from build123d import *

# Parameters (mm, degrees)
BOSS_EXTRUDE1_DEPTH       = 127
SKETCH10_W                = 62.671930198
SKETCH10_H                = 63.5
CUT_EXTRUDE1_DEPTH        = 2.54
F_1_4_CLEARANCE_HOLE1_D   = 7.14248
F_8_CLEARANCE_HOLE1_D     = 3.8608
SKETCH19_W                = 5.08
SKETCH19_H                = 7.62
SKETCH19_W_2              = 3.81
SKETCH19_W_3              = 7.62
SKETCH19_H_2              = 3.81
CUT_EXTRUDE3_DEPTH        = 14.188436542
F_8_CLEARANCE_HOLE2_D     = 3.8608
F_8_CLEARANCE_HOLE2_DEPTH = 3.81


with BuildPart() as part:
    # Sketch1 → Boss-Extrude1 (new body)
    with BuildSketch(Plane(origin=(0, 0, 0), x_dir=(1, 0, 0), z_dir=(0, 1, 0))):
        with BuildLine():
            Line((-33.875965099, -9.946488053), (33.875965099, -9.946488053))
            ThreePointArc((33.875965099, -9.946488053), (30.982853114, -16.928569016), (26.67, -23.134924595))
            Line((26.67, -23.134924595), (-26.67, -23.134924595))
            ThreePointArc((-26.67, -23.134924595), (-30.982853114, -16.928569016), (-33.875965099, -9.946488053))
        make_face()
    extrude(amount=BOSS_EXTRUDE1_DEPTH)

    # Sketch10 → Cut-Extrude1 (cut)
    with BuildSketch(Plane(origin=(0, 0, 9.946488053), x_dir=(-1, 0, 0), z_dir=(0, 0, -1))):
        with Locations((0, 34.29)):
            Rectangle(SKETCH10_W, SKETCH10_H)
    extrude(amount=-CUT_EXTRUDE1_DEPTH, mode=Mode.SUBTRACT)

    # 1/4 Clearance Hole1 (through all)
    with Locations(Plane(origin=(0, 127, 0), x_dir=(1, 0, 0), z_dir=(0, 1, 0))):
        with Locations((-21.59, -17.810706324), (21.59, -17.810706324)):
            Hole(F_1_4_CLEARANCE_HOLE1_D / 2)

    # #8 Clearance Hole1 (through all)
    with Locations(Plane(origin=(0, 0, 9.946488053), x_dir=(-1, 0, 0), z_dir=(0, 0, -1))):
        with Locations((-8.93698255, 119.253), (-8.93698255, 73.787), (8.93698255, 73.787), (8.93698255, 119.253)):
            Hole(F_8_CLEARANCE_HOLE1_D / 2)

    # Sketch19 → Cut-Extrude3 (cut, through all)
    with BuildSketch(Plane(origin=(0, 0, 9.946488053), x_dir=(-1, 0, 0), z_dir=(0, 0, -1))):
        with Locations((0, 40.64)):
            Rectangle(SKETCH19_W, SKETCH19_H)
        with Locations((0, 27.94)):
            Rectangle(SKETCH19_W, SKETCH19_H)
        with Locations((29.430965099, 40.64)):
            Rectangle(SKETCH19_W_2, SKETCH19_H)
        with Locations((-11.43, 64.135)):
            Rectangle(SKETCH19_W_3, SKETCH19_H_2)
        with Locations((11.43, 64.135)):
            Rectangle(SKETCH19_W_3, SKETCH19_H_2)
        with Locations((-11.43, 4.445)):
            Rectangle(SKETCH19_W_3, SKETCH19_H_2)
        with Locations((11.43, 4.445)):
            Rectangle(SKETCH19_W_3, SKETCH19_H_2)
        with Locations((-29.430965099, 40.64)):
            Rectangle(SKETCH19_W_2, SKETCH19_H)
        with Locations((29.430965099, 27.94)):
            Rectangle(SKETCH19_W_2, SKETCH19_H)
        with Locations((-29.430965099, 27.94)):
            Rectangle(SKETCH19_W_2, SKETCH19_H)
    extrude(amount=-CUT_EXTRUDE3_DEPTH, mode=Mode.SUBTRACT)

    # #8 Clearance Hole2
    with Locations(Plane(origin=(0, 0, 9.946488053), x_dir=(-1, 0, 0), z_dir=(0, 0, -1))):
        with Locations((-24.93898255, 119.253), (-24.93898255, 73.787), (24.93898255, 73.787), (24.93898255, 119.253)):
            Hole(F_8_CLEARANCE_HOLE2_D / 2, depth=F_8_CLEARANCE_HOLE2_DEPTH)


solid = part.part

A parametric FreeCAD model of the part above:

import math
import FreeCAD as App
import Part
import Sketcher

V = App.Vector
Q = App.Units.Quantity


def add_polygon(sketch, points):
    """Adds a closed chain of lines whose ends are joined by coincident constraints."""
    first, n = sketch.GeometryCount, len(points)
    for a, b in zip(points, points[1:] + points[:1]):
        sketch.addGeometry(Part.LineSegment(App.Vector(*a, 0), App.Vector(*b, 0)), False)
    for i in range(n):
        sketch.addConstraint(Sketcher.Constraint("Coincident", first + i, 2, first + (i + 1) % n, 1))

doc = App.newDocument("Part")
body = doc.addObject("PartDesign::Body", "Body")

# Sketch on XZ plane
sketch1 = doc.addObject("Sketcher::SketchObject", "Sketch")
body.addObject(sketch1)
sketch1.AttachmentSupport = (doc.XZ_Plane, [""])
sketch1.MapMode = "FlatFace"
sketch1.addGeometry([
    Part.LineSegment(V(33.875965, 9.946488, 0), V(-33.875965, 9.946488, 0)),
    Part.ArcOfCircle(Part.Circle(V(0, 0, 0), V(0, 0, 1), 35.306), math.radians(139.059956), math.radians(163.636975)),
    Part.LineSegment(V(-26.67, 23.134925, 0), V(26.67, 23.134925, 0)),
    Part.ArcOfCircle(Part.Circle(V(0, 0, 0), V(0, 0, 1), 35.306), math.radians(16.363025), math.radians(40.940044)),
], False)
sketch1.addConstraint([
    Sketcher.Constraint("Coincident", 0, 2, 1, 2),
    Sketcher.Constraint("Coincident", 1, 1, 2, 1),
    Sketcher.Constraint("Coincident", 2, 2, 3, 2),
    Sketcher.Constraint("Coincident", 3, 1, 0, 1),
    Sketcher.Constraint("Horizontal", 0),
    Sketcher.Constraint("Horizontal", 2),
    Sketcher.Constraint("Coincident", 1, 3, -1, 1),
    Sketcher.Constraint("Coincident", 3, 3, -1, 1),
    Sketcher.Constraint("Equal", 1, 3),
    Sketcher.Constraint("Radius", 1, Q("1.39 in")),
    Sketcher.Constraint("DistanceX", 2, 1, 2, 2, Q("2.1 in")),
    Sketcher.Constraint("DistanceX", 0, 2, 0, 1, 67.75193),
])
pad1 = doc.addObject("PartDesign::Pad", "Pad")
body.addObject(pad1)
pad1.Profile = sketch1
pad1.Length = Q("5 in")
pad1.Reversed = True

# Sketch on XY plane
sketch2 = doc.addObject("Sketcher::SketchObject", "Sketch001")
body.addObject(sketch2)
sketch2.AttachmentSupport = (doc.XY_Plane, [""])
sketch2.MapMode = "FlatFace"
sketch2.AttachmentOffset = App.Placement(V(0, 0, 9.946488), App.Rotation())
add_polygon(sketch2, [(31.335965, 66.04), (31.335965, 2.54), (-31.335965, 2.54), (-31.335965, 66.04)])  # lines 0-3
sketch2.addConstraint([
    Sketcher.Constraint("Vertical", 0),
    Sketcher.Constraint("Horizontal", 1),
    Sketcher.Constraint("Vertical", 2),
    Sketcher.Constraint("Horizontal", 3),
    Sketcher.Constraint("DistanceY", 0, 2, 0, 1, Q("2.5 in")),
    Sketcher.Constraint("DistanceY", -1, 1, 0, 2, Q("0.1 in")),
    Sketcher.Constraint("DistanceX", 1, 2, 1, 1, 62.67193),
    Sketcher.Constraint("DistanceX", -1, 1, 0, 2, 31.335965),
])
pocket1 = doc.addObject("PartDesign::Pocket", "Pocket")
body.addObject(pocket1)
pocket1.Profile = sketch2
pocket1.Length = Q("0.1 in")
pocket1.Reversed = True

# Sketch on XZ plane
sketch3 = doc.addObject("Sketcher::SketchObject", "Sketch002")
body.addObject(sketch3)
sketch3.AttachmentSupport = (doc.XZ_Plane, [""])
sketch3.MapMode = "FlatFace"
sketch3.AttachmentOffset = App.Placement(V(0, 0, -5 * 25.4), App.Rotation())
sketch3.addGeometry([
    Part.Circle(V(-21.59, 17.810706, 0), V(0, 0, 1), 3.57124),
    Part.Circle(V(21.59, 17.810706, 0), V(0, 0, 1), 3.57124),
], False)
sketch3.addConstraint([
    Sketcher.Constraint("Equal", 0, 1),
    Sketcher.Constraint("Symmetric", 0, 3, 1, 3, -2),
    Sketcher.Constraint("Diameter", 0, Q("0.2812 in")),
    Sketcher.Constraint("DistanceX", 0, 3, 1, 3, Q("1.7 in")),
    Sketcher.Constraint("DistanceY", -1, 1, 0, 3, 17.810706),
])
doc.recompute()
hole = doc.addObject("PartDesign::Hole", "Hole")
body.addObject(hole)
hole.Profile = sketch3
hole.ThreadType = "None"
hole.Diameter = Q("0.2812 in")
hole.DepthType = "ThroughAll"
hole.Reversed = True

# Sketch on XY plane
sketch4 = doc.addObject("Sketcher::SketchObject", "Sketch003")
body.addObject(sketch4)
sketch4.AttachmentSupport = (doc.XY_Plane, [""])
sketch4.MapMode = "FlatFace"
sketch4.AttachmentOffset = App.Placement(V(0, 0, 9.946488), App.Rotation())
sketch4.addGeometry([
    Part.Circle(V(8.936983, 119.253, 0), V(0, 0, 1), 1.9304),
    Part.Circle(V(8.936983, 73.787, 0), V(0, 0, 1), 1.9304),
    Part.Circle(V(-8.936983, 73.787, 0), V(0, 0, 1), 1.9304),
    Part.Circle(V(-8.936983, 119.253, 0), V(0, 0, 1), 1.9304),
], False)
sketch4.addConstraint([
    Sketcher.Constraint("Equal", 0, 1),
    Sketcher.Constraint("Equal", 1, 2),
    Sketcher.Constraint("Equal", 2, 3),
    Sketcher.Constraint("Symmetric", 1, 3, 2, 3, -2),
    Sketcher.Constraint("Symmetric", 0, 3, 3, 3, -2),
    Sketcher.Constraint("Vertical", 0, 3, 1, 3),
    Sketcher.Constraint("Diameter", 0, Q("0.152 in")),
    Sketcher.Constraint("DistanceY", 1, 3, 0, 3, Q("1.79 in")),
    Sketcher.Constraint("DistanceY", -1, 1, 0, 3, Q("4.695 in")),
    Sketcher.Constraint("DistanceX", -1, 1, 0, 3, 8.936983),
])
doc.recompute()
hole2 = doc.addObject("PartDesign::Hole", "Hole001")
body.addObject(hole2)
hole2.Profile = sketch4
hole2.ThreadType = "None"
hole2.Diameter = Q("0.152 in")
hole2.DepthType = "ThroughAll"
hole2.Reversed = True

# Sketch on XY plane
sketch5 = doc.addObject("Sketcher::SketchObject", "Sketch004")
body.addObject(sketch5)
sketch5.AttachmentSupport = (doc.XY_Plane, [""])
sketch5.MapMode = "FlatFace"
sketch5.AttachmentOffset = App.Placement(V(0, 0, 9.946488), App.Rotation())
add_polygon(sketch5, [(2.54, 44.45), (2.54, 36.83), (-2.54, 36.83), (-2.54, 44.45)])  # lines 0-3
add_polygon(sketch5, [(2.54, 31.75), (2.54, 24.13), (-2.54, 24.13), (-2.54, 31.75)])  # lines 4-7
add_polygon(sketch5, [(-27.525965, 44.45), (-27.525965, 36.83), (-31.335965, 36.83), (-31.335965, 44.45)])  # lines 8-11
add_polygon(sketch5, [(15.24, 66.04), (15.24, 62.23), (7.62, 62.23), (7.62, 66.04)])  # lines 12-15
add_polygon(sketch5, [(-7.62, 66.04), (-7.62, 62.23), (-15.24, 62.23), (-15.24, 66.04)])  # lines 16-19
add_polygon(sketch5, [(15.24, 6.35), (15.24, 2.54), (7.62, 2.54), (7.62, 6.35)])  # lines 20-23
add_polygon(sketch5, [(-7.62, 6.35), (-7.62, 2.54), (-15.24, 2.54), (-15.24, 6.35)])  # lines 24-27
add_polygon(sketch5, [(31.335965, 44.45), (31.335965, 36.83), (27.525965, 36.83), (27.525965, 44.45)])  # lines 28-31
add_polygon(sketch5, [(-27.525965, 31.75), (-27.525965, 24.13), (-31.335965, 24.13), (-31.335965, 31.75)])  # lines 32-35
add_polygon(sketch5, [(31.335965, 31.75), (31.335965, 24.13), (27.525965, 24.13), (27.525965, 31.75)])  # lines 36-39
sketch5.addConstraint([
    Sketcher.Constraint("Vertical", 0),
    Sketcher.Constraint("Horizontal", 1),
    Sketcher.Constraint("Vertical", 2),
    Sketcher.Constraint("Horizontal", 3),
    Sketcher.Constraint("Vertical", 4),
    Sketcher.Constraint("Horizontal", 5),
    Sketcher.Constraint("Vertical", 6),
    Sketcher.Constraint("Horizontal", 7),
    Sketcher.Constraint("Vertical", 8),
    Sketcher.Constraint("Horizontal", 9),
    Sketcher.Constraint("Vertical", 10),
    Sketcher.Constraint("Horizontal", 11),
    Sketcher.Constraint("Vertical", 12),
    Sketcher.Constraint("Horizontal", 13),
    Sketcher.Constraint("Vertical", 14),
    Sketcher.Constraint("Horizontal", 15),
    Sketcher.Constraint("Vertical", 16),
    Sketcher.Constraint("Horizontal", 17),
    Sketcher.Constraint("Vertical", 18),
    Sketcher.Constraint("Horizontal", 19),
    Sketcher.Constraint("Vertical", 20),
    Sketcher.Constraint("Horizontal", 21),
    Sketcher.Constraint("Vertical", 22),
    Sketcher.Constraint("Horizontal", 23),
    Sketcher.Constraint("Vertical", 24),
    Sketcher.Constraint("Horizontal", 25),
    Sketcher.Constraint("Vertical", 26),
    Sketcher.Constraint("Horizontal", 27),
    Sketcher.Constraint("Vertical", 28),
    Sketcher.Constraint("Horizontal", 29),
    Sketcher.Constraint("Vertical", 30),
    Sketcher.Constraint("Horizontal", 31),
    Sketcher.Constraint("Vertical", 32),
    Sketcher.Constraint("Horizontal", 33),
    Sketcher.Constraint("Vertical", 34),
    Sketcher.Constraint("Horizontal", 35),
    Sketcher.Constraint("Vertical", 36),
    Sketcher.Constraint("Horizontal", 37),
    Sketcher.Constraint("Vertical", 38),
    Sketcher.Constraint("Horizontal", 39),
    Sketcher.Constraint("Symmetric", 13, 2, 16, 2, -2),
    Sketcher.Constraint("Symmetric", 15, 2, 18, 2, -2),
    Sketcher.Constraint("Symmetric", 21, 2, 24, 2, -2),
    Sketcher.Constraint("Symmetric", 23, 2, 26, 2, -2),
    Sketcher.Constraint("Symmetric", 9, 2, 28, 2, -2),
    Sketcher.Constraint("Symmetric", 11, 2, 30, 2, -2),
    Sketcher.Constraint("Symmetric", 33, 2, 36, 2, -2),
    Sketcher.Constraint("Symmetric", 35, 2, 38, 2, -2),
    Sketcher.Constraint("Horizontal", 1, 2, 8, 2),
    Sketcher.Constraint("Horizontal", 3, 2, 10, 2),
    Sketcher.Constraint("Horizontal", 5, 2, 32, 2),
    Sketcher.Constraint("Horizontal", 7, 2, 34, 2),
    Sketcher.Constraint("Vertical", 3, 2, 4, 2),
    Sketcher.Constraint("Vertical", 2, 2, 5, 2),
    Sketcher.Constraint("Vertical", 15, 2, 20, 2),
    Sketcher.Constraint("Vertical", 14, 2, 21, 2),
    Sketcher.Constraint("Vertical", 11, 2, 32, 2),
    Sketcher.Constraint("Vertical", 10, 2, 33, 2),
    Sketcher.Constraint("Equal", 27, 0),
    Sketcher.Constraint("Equal", 2, 4),
    Sketcher.Constraint("Equal", 39, 12),
    Sketcher.Constraint("Equal", 18, 20),
    Sketcher.Constraint("DistanceX", 1, 2, 1, 1, Q("0.2 in")),
    Sketcher.Constraint("DistanceX", 13, 2, 13, 1, Q("0.3 in")),
    Sketcher.Constraint("DistanceY", 0, 2, 12, 2, Q("1 in")),
    Sketcher.Constraint("DistanceY", 22, 2, 7, 2, Q("1 in")),
    Sketcher.Constraint("DistanceX", 9, 2, 9, 1, Q("0.15 in")),
    Sketcher.Constraint("DistanceX", -1, 1, 0, 2, Q("0.1 in")),
    Sketcher.Constraint("DistanceX", -1, 1, 12, 2, Q("0.6 in")),
    Sketcher.Constraint("DistanceY", -1, 1, 14, 2, Q("2.6 in")),
    Sketcher.Constraint("DistanceY", -1, 1, 20, 2, Q("0.1 in")),
    Sketcher.Constraint("DistanceX", 8, 2, -1, 1, 27.525965),
])
pocket2 = doc.addObject("PartDesign::Pocket", "Pocket001")
body.addObject(pocket2)
pocket2.Profile = sketch5
pocket2.Type = "ThroughAll"
pocket2.Reversed = True

# Sketch on XY plane
sketch6 = doc.addObject("Sketcher::SketchObject", "Sketch005")
body.addObject(sketch6)
sketch6.AttachmentSupport = (doc.XY_Plane, [""])
sketch6.MapMode = "FlatFace"
sketch6.AttachmentOffset = App.Placement(V(0, 0, 9.946488), App.Rotation())
sketch6.addGeometry([
    Part.Circle(V(24.938983, 119.253, 0), V(0, 0, 1), 1.9304),
    Part.Circle(V(24.938983, 73.787, 0), V(0, 0, 1), 1.9304),
    Part.Circle(V(-24.938983, 73.787, 0), V(0, 0, 1), 1.9304),
    Part.Circle(V(-24.938983, 119.253, 0), V(0, 0, 1), 1.9304),
], False)
sketch6.addConstraint([
    Sketcher.Constraint("Equal", 0, 1),
    Sketcher.Constraint("Equal", 1, 2),
    Sketcher.Constraint("Equal", 2, 3),
    Sketcher.Constraint("Symmetric", 1, 3, 2, 3, -2),
    Sketcher.Constraint("Symmetric", 0, 3, 3, 3, -2),
    Sketcher.Constraint("Vertical", 0, 3, 1, 3),
    Sketcher.Constraint("Diameter", 0, Q("0.152 in")),
    Sketcher.Constraint("DistanceY", 1, 3, 0, 3, Q("1.79 in")),
    Sketcher.Constraint("DistanceY", -1, 1, 0, 3, Q("4.695 in")),
    Sketcher.Constraint("DistanceX", -1, 1, 0, 3, 24.938983),
])
doc.recompute()
hole3 = doc.addObject("PartDesign::Hole", "Hole002")
body.addObject(hole3)
hole3.Profile = sketch6
hole3.ThreadType = "None"
hole3.Diameter = Q("0.152 in")
hole3.DepthType = "Dimension"
hole3.Depth = Q("0.15 in")
hole3.DrillPoint = "Flat"
hole3.Reversed = True

doc.recompute()
